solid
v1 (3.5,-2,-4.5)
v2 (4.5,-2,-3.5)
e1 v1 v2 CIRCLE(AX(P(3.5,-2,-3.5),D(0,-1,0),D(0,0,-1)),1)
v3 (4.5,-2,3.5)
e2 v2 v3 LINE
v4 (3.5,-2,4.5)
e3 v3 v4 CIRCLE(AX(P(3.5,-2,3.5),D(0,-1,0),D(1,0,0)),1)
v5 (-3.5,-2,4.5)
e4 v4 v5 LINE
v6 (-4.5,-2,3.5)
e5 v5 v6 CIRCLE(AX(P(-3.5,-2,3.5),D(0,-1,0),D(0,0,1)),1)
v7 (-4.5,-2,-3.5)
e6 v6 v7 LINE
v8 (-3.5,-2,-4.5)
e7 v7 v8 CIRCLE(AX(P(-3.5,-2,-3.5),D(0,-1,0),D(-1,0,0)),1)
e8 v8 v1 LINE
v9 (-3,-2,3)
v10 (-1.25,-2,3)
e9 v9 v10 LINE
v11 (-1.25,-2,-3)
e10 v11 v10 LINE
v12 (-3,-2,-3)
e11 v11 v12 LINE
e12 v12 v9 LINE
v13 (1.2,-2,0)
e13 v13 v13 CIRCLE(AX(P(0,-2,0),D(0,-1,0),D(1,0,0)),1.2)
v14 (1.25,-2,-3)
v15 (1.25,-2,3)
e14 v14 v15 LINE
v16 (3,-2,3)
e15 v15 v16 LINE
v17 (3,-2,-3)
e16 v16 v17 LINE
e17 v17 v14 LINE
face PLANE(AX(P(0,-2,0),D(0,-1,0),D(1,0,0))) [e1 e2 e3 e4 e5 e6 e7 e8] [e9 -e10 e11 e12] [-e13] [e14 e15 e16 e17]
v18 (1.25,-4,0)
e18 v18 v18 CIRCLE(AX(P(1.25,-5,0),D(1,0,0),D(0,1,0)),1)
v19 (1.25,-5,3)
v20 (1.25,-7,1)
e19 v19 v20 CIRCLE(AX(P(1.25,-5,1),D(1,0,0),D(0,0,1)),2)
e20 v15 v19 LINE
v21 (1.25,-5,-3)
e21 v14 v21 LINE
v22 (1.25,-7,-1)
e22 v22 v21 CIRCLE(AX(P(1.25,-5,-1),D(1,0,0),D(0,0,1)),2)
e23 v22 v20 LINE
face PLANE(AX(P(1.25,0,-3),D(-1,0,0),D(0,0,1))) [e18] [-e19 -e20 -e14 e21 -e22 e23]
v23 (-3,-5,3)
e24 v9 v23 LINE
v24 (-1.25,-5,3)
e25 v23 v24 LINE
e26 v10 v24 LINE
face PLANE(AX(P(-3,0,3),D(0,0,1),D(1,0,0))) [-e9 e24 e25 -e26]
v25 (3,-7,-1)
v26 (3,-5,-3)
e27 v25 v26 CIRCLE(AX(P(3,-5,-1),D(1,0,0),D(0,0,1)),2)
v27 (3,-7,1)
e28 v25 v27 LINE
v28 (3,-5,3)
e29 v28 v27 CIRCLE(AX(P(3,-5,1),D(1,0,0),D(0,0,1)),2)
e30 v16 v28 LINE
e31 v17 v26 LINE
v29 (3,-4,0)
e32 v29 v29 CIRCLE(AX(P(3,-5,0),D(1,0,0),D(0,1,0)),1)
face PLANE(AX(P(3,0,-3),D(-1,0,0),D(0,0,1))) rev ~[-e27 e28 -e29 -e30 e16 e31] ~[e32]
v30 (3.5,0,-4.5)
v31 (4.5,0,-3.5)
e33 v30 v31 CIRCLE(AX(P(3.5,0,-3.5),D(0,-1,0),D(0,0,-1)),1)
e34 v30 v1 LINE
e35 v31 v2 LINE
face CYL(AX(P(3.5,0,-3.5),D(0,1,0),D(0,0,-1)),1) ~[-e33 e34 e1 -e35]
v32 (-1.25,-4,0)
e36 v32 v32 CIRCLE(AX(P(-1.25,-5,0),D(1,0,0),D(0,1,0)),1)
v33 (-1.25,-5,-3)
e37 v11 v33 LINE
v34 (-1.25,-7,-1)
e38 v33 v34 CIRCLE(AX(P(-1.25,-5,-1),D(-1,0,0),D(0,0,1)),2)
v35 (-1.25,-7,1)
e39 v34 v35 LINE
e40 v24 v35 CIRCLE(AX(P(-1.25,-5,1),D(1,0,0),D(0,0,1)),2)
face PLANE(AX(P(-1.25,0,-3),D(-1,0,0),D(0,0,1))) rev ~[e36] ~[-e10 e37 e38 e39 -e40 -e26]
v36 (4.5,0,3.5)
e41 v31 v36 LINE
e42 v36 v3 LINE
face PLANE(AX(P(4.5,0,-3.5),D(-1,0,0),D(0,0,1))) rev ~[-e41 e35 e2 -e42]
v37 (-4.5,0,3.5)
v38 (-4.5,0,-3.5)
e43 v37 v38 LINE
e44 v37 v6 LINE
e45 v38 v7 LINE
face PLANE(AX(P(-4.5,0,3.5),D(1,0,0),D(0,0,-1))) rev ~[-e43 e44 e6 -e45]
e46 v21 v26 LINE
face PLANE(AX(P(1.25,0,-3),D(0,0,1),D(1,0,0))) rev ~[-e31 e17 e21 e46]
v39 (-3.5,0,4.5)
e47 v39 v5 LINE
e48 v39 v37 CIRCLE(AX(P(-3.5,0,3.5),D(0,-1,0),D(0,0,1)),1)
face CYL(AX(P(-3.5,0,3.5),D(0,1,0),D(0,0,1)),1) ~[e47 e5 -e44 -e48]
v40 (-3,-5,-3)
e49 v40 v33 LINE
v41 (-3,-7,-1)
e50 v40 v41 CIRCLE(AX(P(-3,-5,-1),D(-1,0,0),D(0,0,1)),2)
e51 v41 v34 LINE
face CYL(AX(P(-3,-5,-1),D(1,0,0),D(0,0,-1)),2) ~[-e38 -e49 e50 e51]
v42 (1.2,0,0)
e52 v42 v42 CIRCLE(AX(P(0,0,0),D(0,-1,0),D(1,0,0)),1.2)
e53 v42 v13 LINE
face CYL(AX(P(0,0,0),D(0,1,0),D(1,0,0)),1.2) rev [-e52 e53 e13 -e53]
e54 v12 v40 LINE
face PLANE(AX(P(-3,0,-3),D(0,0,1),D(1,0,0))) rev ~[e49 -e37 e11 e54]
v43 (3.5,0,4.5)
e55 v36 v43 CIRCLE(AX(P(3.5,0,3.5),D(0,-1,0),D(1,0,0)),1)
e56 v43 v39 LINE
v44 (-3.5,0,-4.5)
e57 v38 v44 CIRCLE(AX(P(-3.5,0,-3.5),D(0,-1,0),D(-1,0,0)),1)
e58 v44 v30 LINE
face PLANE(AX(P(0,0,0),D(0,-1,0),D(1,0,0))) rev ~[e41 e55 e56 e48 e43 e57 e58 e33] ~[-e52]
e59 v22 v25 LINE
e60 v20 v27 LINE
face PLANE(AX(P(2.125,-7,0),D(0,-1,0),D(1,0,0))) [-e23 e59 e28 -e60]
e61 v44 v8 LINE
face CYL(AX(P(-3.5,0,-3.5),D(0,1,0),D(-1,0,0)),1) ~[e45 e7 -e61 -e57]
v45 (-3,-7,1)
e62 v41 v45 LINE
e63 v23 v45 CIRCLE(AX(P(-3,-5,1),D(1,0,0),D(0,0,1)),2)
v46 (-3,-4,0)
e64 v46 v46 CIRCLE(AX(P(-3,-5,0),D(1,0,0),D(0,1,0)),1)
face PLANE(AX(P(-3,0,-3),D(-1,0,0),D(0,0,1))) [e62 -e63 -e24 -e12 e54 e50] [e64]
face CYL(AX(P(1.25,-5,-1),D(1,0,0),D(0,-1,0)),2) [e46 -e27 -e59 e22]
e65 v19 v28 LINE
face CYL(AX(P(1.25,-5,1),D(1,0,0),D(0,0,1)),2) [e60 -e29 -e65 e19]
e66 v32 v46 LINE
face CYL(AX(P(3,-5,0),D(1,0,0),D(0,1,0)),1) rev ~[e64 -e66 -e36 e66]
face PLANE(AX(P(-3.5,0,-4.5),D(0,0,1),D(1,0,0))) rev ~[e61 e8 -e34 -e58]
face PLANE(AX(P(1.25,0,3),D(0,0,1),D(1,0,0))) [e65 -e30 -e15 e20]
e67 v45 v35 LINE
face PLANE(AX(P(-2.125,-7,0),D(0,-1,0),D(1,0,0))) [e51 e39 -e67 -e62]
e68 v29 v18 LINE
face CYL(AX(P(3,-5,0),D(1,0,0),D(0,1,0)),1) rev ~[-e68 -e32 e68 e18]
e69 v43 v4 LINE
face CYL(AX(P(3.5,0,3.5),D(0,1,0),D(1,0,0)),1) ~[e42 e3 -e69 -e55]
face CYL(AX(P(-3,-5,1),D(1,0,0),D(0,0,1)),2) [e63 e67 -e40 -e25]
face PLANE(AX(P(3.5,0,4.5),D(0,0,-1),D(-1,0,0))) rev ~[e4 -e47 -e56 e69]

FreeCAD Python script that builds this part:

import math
import FreeCAD as App
import Part
import Sketcher
from FreeCAD import Vector


def edges_at(feature, points):
    """Names of the edges that pass closest to the given points."""
    edges = feature.Shape.Edges
    near = lambda p: min(range(len(edges)), key=lambda i: edges[i].distToShape(Part.Vertex(*p))[0])
    return sorted({f"Edge{near(p) + 1}" for p in points})

doc = App.newDocument("Part")
params = doc.addObject("Spreadsheet::Sheet", "Params")
for row, (alias, value) in enumerate([
    ("sketch1_radius", "1 mm"),
    ("sketch1_diameter", "2.4 mm"),
    ("sketch1_width", "7 mm"),
    ("sketch1_height", "6 mm"),
    ("sketch1_width2", "1.75 mm"),
    ("pad1_length", "2 mm"),
    ("sketch2_height", "6 mm"),
    ("sketch2_width", "1.75 mm"),
    ("pad2_length", "7 mm"),
    ("sketch3_diameter", "2 mm"),
    ("pocket1_length", "6 mm"),
    ("fillet_radius", "2 mm"),
    ("fillet2_radius", "2 mm"),
], start=1):
    params.set(f"A{row}", alias)
    params.set(f"B{row}", "=" + value)
    params.setAlias(f"B{row}", alias)

body = doc.addObject("PartDesign::Body", "Body")

# Sketch on XZ plane
sketch1 = body.newObject("Sketcher::SketchObject", "Sketch")
sketch1.AttachmentSupport = (doc.getObject("XZ_Plane"), [""])
sketch1.MapMode = "FlatFace"
sketch1.addGeometry([
    Part.LineSegment(Vector(-3.5, -4.5, 0), Vector(3.5, -4.5, 0)),  # 0
    Part.ArcOfCircle(Part.Circle(Vector(3.5, -3.5, 0), Vector(0, 0, 1), 1), math.radians(-90), math.radians(0)),  # 1
    Part.LineSegment(Vector(4.5, -3.5, 0), Vector(4.5, 3.5, 0)),  # 2
    Part.ArcOfCircle(Part.Circle(Vector(3.5, 3.5, 0), Vector(0, 0, 1), 1), math.radians(0), math.radians(90)),  # 3
    Part.LineSegment(Vector(3.5, 4.5, 0), Vector(-3.5, 4.5, 0)),  # 4
    Part.ArcOfCircle(Part.Circle(Vector(-3.5, 3.5, 0), Vector(0, 0, 1), 1), math.radians(90), math.radians(180)),  # 5
    Part.LineSegment(Vector(-4.5, 3.5, 0), Vector(-4.5, -3.5, 0)),  # 6
    Part.ArcOfCircle(Part.Circle(Vector(-3.5, -3.5, 0), Vector(0, 0, 1), 1), math.radians(180), math.radians(270)),  # 7
    Part.LineSegment(Vector(-3, -3, 0), Vector(-3, 3, 0)),  # 8
    Part.LineSegment(Vector(-3, 3, 0), Vector(-1.2, 3, 0)),  # 9
    Part.LineSegment(Vector(-1.2, 3, 0), Vector(-1.2, -3, 0)),  # 10
    Part.LineSegment(Vector(-1.2, -3, 0), Vector(-3, -3, 0)),  # 11
    Part.Circle(Vector(0, 0, 0), Vector(0, 0, 1), 1.2),  # 12
    Part.LineSegment(Vector(3, -3, 0), Vector(1.2, -3, 0)),  # 13
    Part.LineSegment(Vector(1.2, -3, 0), Vector(1.2, 3, 0)),  # 14
    Part.LineSegment(Vector(1.2, 3, 0), Vector(3, 3, 0)),  # 15
    Part.LineSegment(Vector(3, 3, 0), Vector(3, -3, 0)),  # 16
], False)
sketch1.addConstraint([
    Sketcher.Constraint("Tangent", 0, 2, 1, 1),
    Sketcher.Constraint("Tangent", 1, 2, 2, 1),
    Sketcher.Constraint("Tangent", 2, 2, 3, 1),
    Sketcher.Constraint("Tangent", 3, 2, 4, 1),
    Sketcher.Constraint("Tangent", 4, 2, 5, 1),
    Sketcher.Constraint("Tangent", 5, 2, 6, 1),
    Sketcher.Constraint("Tangent", 6, 2, 7, 1),
    Sketcher.Constraint("Tangent", 7, 2, 0, 1),
    Sketcher.Constraint("Coincident", 8, 2, 9, 1),
    Sketcher.Constraint("Coincident", 9, 2, 10, 1),
    Sketcher.Constraint("Coincident", 10, 2, 11, 1),
    Sketcher.Constraint("Coincident", 11, 2, 8, 1),
    Sketcher.Constraint("Coincident", 13, 2, 14, 1),
    Sketcher.Constraint("Coincident", 14, 2, 15, 1),
    Sketcher.Constraint("Coincident", 15, 2, 16, 1),
    Sketcher.Constraint("Coincident", 16, 2, 13, 1),
    Sketcher.Constraint("Horizontal", 0),
    Sketcher.Constraint("Vertical", 2),
    Sketcher.Constraint("Horizontal", 4),
    Sketcher.Constraint("Vertical", 6),
    Sketcher.Constraint("Vertical", 8),
    Sketcher.Constraint("Horizontal", 9),
    Sketcher.Constraint("Vertical", 10),
    Sketcher.Constraint("Horizontal", 11),
    Sketcher.Constraint("Horizontal", 13),
    Sketcher.Constraint("Vertical", 14),
    Sketcher.Constraint("Horizontal", 15),
    Sketcher.Constraint("Vertical", 16),
    Sketcher.Constraint("Coincident", 12, 3, -1, 1),
    Sketcher.Constraint("Equal", 1, 3),
    Sketcher.Constraint("Equal", 3, 5),
    Sketcher.Constraint("Equal", 5, 7),
    Sketcher.Constraint("Symmetric", 1, 3, 5, 3, -1, 1),
    Sketcher.Constraint("Symmetric", 9, 2, 13, 2, -1, 1),
    Sketcher.Constraint("Symmetric", 11, 2, 15, 2, -1, 1),
    Sketcher.Constraint("Horizontal", 11, 2, 13, 2),
    Sketcher.Constraint("Equal", 4, 2),
    Sketcher.Constraint("Radius", 1, 1.0),
    Sketcher.Constraint("Diameter", 12, 2.4),
    Sketcher.Constraint("DistanceX", 0, 1, 0, 2, 7.0),
    Sketcher.Constraint("DistanceY", 8, 1, 8, 2, 6.0),
    Sketcher.Constraint("DistanceX", 8, 2, -1, 1, 3.0),
    Sketcher.Constraint("DistanceX", 9, 1, 9, 2, 1.75),
])
sketch1.setExpression("Constraints[37]", "Params.sketch1_radius")
sketch1.setExpression("Constraints[38]", "Params.sketch1_diameter")
sketch1.setExpression("Constraints[39]", "Params.sketch1_width")
sketch1.setExpression("Constraints[40]", "Params.sketch1_height")
sketch1.setExpression("Constraints[42]", "Params.sketch1_width2")
pad1 = body.newObject("PartDesign::Pad", "Pad")
pad1.Profile = sketch1
pad1.setExpression("Length", "Params.pad1_length")

# Sketch on XZ plane
sketch2 = body.newObject("Sketcher::SketchObject", "Sketch001")
sketch2.AttachmentSupport = (doc.getObject("XZ_Plane"), [""])
sketch2.MapMode = "FlatFace"
sketch2.addGeometry([
    Part.LineSegment(Vector(-3, 3, 0), Vector(-3, -3, 0)),  # 0
    Part.LineSegment(Vector(-3, -3, 0), Vector(-1.2, -3, 0)),  # 1
    Part.LineSegment(Vector(-1.2, -3, 0), Vector(-1.2, 3, 0)),  # 2
    Part.LineSegment(Vector(-1.2, 3, 0), Vector(-3, 3, 0)),  # 3
    Part.LineSegment(Vector(1.2, 3, 0), Vector(1.2, -3, 0)),  # 4
    Part.LineSegment(Vector(1.2, -3, 0), Vector(3, -3, 0)),  # 5
    Part.LineSegment(Vector(3, -3, 0), Vector(3, 3, 0)),  # 6
    Part.LineSegment(Vector(3, 3, 0), Vector(1.2, 3, 0)),  # 7
], False)
sketch2.addConstraint([
    Sketcher.Constraint("Coincident", 0, 2, 1, 1),
    Sketcher.Constraint("Coincident", 1, 2, 2, 1),
    Sketcher.Constraint("Coincident", 2, 2, 3, 1),
    Sketcher.Constraint("Coincident", 3, 2, 0, 1),
    Sketcher.Constraint("Coincident", 4, 2, 5, 1),
    Sketcher.Constraint("Coincident", 5, 2, 6, 1),
    Sketcher.Constraint("Coincident", 6, 2, 7, 1),
    Sketcher.Constraint("Coincident", 7, 2, 4, 1),
    Sketcher.Constraint("Vertical", 0),
    Sketcher.Constraint("Horizontal", 1),
    Sketcher.Constraint("Vertical", 2),
    Sketcher.Constraint("Horizontal", 3),
    Sketcher.Constraint("Vertical", 4),
    Sketcher.Constraint("Horizontal", 5),
    Sketcher.Constraint("Vertical", 6),
    Sketcher.Constraint("Horizontal", 7),
    Sketcher.Constraint("Symmetric", 2, 2, 4, 2, -1, 1),
    Sketcher.Constraint("Symmetric", 0, 2, 6, 2, -1, 1),
    Sketcher.Constraint("Horizontal", 1, 2, 4, 2),
    Sketcher.Constraint("DistanceY", 0, 2, 0, 1, 6.0),
    Sketcher.Constraint("DistanceX", 0, 2, -1, 1, 3.0),
    Sketcher.Constraint("DistanceX", 1, 1, 1, 2, 1.75),
])
sketch2.setExpression("Constraints[19]", "Params.sketch2_height")
sketch2.setExpression("Constraints[21]", "Params.sketch2_width")
pad2 = body.newObject("PartDesign::Pad", "Pad001")
pad2.Profile = sketch2
pad2.setExpression("Length", "Params.pad2_length")

# Sketch on YZ plane
sketch3 = body.newObject("Sketcher::SketchObject", "Sketch002")
sketch3.AttachmentSupport = (doc.getObject("YZ_Plane"), [""])
sketch3.MapMode = "FlatFace"
sketch3.AttachmentOffset = App.Placement(Vector(0, 0, 3), App.Rotation())
sketch3.addGeometry(Part.Circle(Vector(-5, 0, 0), Vector(0, 0, 1), 1), False)
sketch3.addConstraint([
    Sketcher.Constraint("PointOnObject", 0, 3, -1),
    Sketcher.Constraint("Diameter", 0, 2.0),
    Sketcher.Constraint("DistanceX", 0, 3, -1, 1, 5.0),
])
sketch3.setExpression("Constraints[1]", "Params.sketch3_diameter")
pocket1 = body.newObject("PartDesign::Pocket", "Pocket")
pocket1.Profile = sketch3
pocket1.setExpression("Length", "Params.pocket1_length")
doc.recompute()

fillet = body.newObject("PartDesign::Fillet", "Fillet")
fillet.Base = (pocket1, edges_at(pocket1, [(2.125, -7, 3)]))
fillet.setExpression("Radius", "Params.fillet_radius")
doc.recompute()

fillet2 = body.newObject("PartDesign::Fillet", "Fillet001")
fillet2.Base = (fillet, edges_at(fillet, [(-2.125, -7, 3), (-2.125, -7, -3), (2.125, -7, -3)]))
fillet2.setExpression("Radius", "Params.fillet2_radius")

doc.recompute()
